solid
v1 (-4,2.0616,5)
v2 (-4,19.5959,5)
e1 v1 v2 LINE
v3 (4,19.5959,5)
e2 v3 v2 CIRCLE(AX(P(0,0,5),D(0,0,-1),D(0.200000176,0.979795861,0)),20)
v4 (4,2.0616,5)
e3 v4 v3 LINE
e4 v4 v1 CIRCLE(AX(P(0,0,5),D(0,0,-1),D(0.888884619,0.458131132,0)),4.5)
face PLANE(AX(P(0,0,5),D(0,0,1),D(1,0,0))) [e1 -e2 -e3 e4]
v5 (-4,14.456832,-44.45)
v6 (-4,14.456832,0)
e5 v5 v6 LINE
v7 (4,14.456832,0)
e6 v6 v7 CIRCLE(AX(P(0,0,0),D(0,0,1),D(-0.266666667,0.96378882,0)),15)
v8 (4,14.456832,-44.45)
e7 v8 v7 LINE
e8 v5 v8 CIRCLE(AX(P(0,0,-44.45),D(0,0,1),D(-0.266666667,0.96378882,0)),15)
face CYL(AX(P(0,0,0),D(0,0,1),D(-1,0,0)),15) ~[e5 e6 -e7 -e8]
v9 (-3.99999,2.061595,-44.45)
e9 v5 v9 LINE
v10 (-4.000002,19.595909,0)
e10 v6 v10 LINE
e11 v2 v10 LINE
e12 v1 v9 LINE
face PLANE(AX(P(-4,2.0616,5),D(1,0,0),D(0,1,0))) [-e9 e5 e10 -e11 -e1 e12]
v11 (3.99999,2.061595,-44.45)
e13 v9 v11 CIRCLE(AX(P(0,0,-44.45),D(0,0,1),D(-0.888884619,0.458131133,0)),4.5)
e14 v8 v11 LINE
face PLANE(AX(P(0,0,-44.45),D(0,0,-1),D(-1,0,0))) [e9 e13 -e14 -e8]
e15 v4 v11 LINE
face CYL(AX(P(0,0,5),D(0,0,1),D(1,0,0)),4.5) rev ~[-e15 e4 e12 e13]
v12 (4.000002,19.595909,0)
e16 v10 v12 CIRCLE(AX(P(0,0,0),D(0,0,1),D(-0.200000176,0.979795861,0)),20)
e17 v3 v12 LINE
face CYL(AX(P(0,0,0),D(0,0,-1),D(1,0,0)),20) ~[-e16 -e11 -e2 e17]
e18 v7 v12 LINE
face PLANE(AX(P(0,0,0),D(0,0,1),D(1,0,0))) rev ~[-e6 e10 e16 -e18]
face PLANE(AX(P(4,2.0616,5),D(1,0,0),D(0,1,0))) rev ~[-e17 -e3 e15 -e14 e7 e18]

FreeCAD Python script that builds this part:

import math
import FreeCAD as App
import Part
import Sketcher
from FreeCAD import Vector

doc = App.newDocument("Part")
body = doc.addObject("PartDesign::Body", "Body")

# Sketch on XY plane
sketch1 = doc.addObject("Sketcher::SketchObject", "Sketch")
body.addObject(sketch1)
sketch1.AttachmentSupport = (doc.XY_Plane, [""])
sketch1.MapMode = "FlatFace"
sketch1.addGeometry(Part.Circle(Vector(0, 0, 0), Vector(0, 0, 1), 20), False)
sketch1.addConstraint(Sketcher.Constraint("Coincident", 0, 3, -1, 1))
sketch1.addConstraint(Sketcher.Constraint("Diameter", 0, 40.0))
pad1 = doc.addObject("PartDesign::Pad", "Pad")
body.addObject(pad1)
pad1.Profile = sketch1
pad1.Length = 5

# Sketch on XY plane
sketch2 = doc.addObject("Sketcher::SketchObject", "Sketch001")
body.addObject(sketch2)
sketch2.AttachmentSupport = (doc.XY_Plane, [""])
sketch2.MapMode = "FlatFace"
sketch2.addGeometry(Part.Circle(Vector(0, 0, 0), Vector(0, 0, 1), 15), False)
sketch2.addConstraint(Sketcher.Constraint("Coincident", 0, 3, -1, 1))
sketch2.addConstraint(Sketcher.Constraint("Diameter", 0, 30.0))
pad2 = doc.addObject("PartDesign::Pad", "Pad001")
body.addObject(pad2)
pad2.Profile = sketch2
pad2.Length = 44.45
pad2.Reversed = True

# Sketch on XY plane
sketch3 = doc.addObject("Sketcher::SketchObject", "Sketch002")
body.addObject(sketch3)
sketch3.AttachmentSupport = (doc.XY_Plane, [""])
sketch3.MapMode = "FlatFace"
sketch3.AttachmentOffset = App.Placement(Vector(0, 0, 5), App.Rotation())
sketch3.addGeometry(Part.Circle(Vector(0, 0, 0), Vector(0, 0, 1), 4.5), False)
sketch3.addConstraint(Sketcher.Constraint("Coincident", 0, 3, -1, 1))
sketch3.addConstraint(Sketcher.Constraint("Diameter", 0, 9.0))
pocket1 = doc.addObject("PartDesign::Pocket", "Pocket")
body.addObject(pocket1)
pocket1.Profile = sketch3
pocket1.Type = "ThroughAll"

# Sketch on XY plane
sketch4 = doc.addObject("Sketcher::SketchObject", "Sketch003")
body.addObject(sketch4)
sketch4.AttachmentSupport = (doc.XY_Plane, [""])
sketch4.MapMode = "FlatFace"
sketch4.AttachmentOffset = App.Placement(Vector(0, 0, 5), App.Rotation())
sketch4.addGeometry(Part.LineSegment(Vector(4, 2.1, 0), Vector(4, 19.6, 0)), False)
sketch4.addGeometry(Part.ArcOfCircle(Part.Circle(Vector(0, 0, 0), Vector(0, 0, 1), 20), math.radians(78), math.radians(102)), False)
sketch4.addGeometry(Part.LineSegment(Vector(-4, 19.6, 0), Vector(-4, 2.1, 0)), False)
sketch4.addGeometry(Part.ArcOfCircle(Part.Circle(Vector(0, 0, 0), Vector(0, 0, 1), 4.5), math.radians(27), math.radians(153)), False)
sketch4.addConstraint(Sketcher.Constraint("Coincident", 0, 2, 1, 1))
sketch4.addConstraint(Sketcher.Constraint("Coincident", 1, 2, 2, 1))
sketch4.addConstraint(Sketcher.Constraint("Coincident", 2, 2, 3, 2))
sketch4.addConstraint(Sketcher.Constraint("Coincident", 3, 1, 0, 1))
sketch4.addConstraint(Sketcher.Constraint("Vertical", 0))
sketch4.addConstraint(Sketcher.Constraint("Vertical", 2))
sketch4.addConstraint(Sketcher.Constraint("Coincident", 1, 3, -1, 1))
sketch4.addConstraint(Sketcher.Constraint("Coincident", 3, 3, -1, 1))
sketch4.addConstraint(Sketcher.Constraint("Horizontal", 0, 2, 1, 2))
sketch4.addConstraint(Sketcher.Constraint("DistanceX", -1, 1, 0, 2, 4.0))
sketch4.addConstraint(Sketcher.Constraint("Radius", 1, 20.0))
sketch4.addConstraint(Sketcher.Constraint("Radius", 3, 4.5))
pocket2 = doc.addObject("PartDesign::Pocket", "Pocket001")
body.addObject(pocket2)
pocket2.Profile = sketch4
pocket2.Type = "ThroughAll"

doc.recompute()
